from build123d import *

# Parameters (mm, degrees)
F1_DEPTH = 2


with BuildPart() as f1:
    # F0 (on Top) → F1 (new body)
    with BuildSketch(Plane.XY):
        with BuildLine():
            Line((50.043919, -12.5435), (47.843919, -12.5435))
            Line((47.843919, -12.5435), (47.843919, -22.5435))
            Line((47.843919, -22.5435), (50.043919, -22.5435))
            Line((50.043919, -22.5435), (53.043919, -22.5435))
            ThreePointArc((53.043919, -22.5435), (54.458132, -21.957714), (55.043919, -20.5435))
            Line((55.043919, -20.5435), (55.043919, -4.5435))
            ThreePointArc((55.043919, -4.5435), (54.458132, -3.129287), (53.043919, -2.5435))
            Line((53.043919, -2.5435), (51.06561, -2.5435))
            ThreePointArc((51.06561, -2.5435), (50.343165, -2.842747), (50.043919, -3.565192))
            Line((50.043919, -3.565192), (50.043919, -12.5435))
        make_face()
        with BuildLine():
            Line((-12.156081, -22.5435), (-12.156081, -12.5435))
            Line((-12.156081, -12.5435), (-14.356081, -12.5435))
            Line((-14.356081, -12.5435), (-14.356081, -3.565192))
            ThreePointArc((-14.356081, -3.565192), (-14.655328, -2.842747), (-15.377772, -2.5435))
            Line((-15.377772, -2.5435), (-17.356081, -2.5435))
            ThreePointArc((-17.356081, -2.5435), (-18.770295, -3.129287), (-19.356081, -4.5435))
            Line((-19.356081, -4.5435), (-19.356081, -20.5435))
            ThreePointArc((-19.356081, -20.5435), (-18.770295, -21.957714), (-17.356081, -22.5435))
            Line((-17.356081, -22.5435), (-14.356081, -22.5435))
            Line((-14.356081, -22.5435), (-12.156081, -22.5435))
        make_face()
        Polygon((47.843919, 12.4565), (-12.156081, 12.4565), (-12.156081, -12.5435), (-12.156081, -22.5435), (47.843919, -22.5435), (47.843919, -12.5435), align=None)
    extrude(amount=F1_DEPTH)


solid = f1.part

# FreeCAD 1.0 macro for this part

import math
import FreeCAD as App
import Part
import Sketcher

V = App.Vector
Q = App.Units.Quantity

doc = App.newDocument("Part")
params = doc.addObject("Spreadsheet::Sheet", "Params")
for row, (alias, value) in enumerate([
    ("sketch1_radius", "2 mm"),
    ("sketch1_width", "60 mm"),
    ("sketch1_height", "25 mm"),
    ("sketch1_height2", "16 mm"),
    ("sketch1_width2", "2.2 mm"),
    ("pad1_length", "2 mm"),
], start=1):
    params.set(f"A{row}", alias)
    params.set(f"B{row}", "=" + value)
    params.setAlias(f"B{row}", alias)

body = doc.addObject("PartDesign::Body", "Body")

sketch1 = body.newObject("Sketcher::SketchObject", "Sketch")
sketch1.AttachmentSupport = (doc.getObject("XY_Plane"), [""])
sketch1.MapMode = "FlatFace"
sketch1.addGeometry([
    Part.LineSegment(V(50, -12.5, 0), V(47.8, -12.5, 0)),
    Part.LineSegment(V(47.8, -12.5, 0), V(47.8, 12.5, 0)),
    Part.LineSegment(V(47.8, 12.5, 0), V(-12.2, 12.5, 0)),
    Part.LineSegment(V(-12.2, 12.5, 0), V(-12.2, -12.5, 0)),
    Part.LineSegment(V(-12.2, -12.5, 0), V(-14.4, -12.5, 0)),
    Part.LineSegment(V(-14.4, -12.5, 0), V(-14.4, -3.6, 0)),
    Part.ArcOfCircle(Part.Circle(V(-15.4, -3.6, 0), V(0, 0, 1), 1), math.radians(0), math.radians(90)),
    Part.LineSegment(V(-15.4, -2.5, 0), V(-17.4, -2.5, 0)),
    Part.ArcOfCircle(Part.Circle(V(-17.4, -4.5, 0), V(0, 0, 1), 2), math.radians(90), math.radians(180)),
    Part.LineSegment(V(-19.4, -4.5, 0), V(-19.4, -20.5, 0)),
    Part.ArcOfCircle(Part.Circle(V(-17.4, -20.5, 0), V(0, 0, 1), 2), math.radians(180), math.radians(270)),
    Part.LineSegment(V(-17.4, -22.5, 0), V(53, -22.5, 0)),
    Part.ArcOfCircle(Part.Circle(V(53, -20.5, 0), V(0, 0, 1), 2), math.radians(-90), math.radians(0)),
    Part.LineSegment(V(55, -20.5, 0), V(55, -4.5, 0)),
    Part.ArcOfCircle(Part.Circle(V(53, -4.5, 0), V(0, 0, 1), 2), math.radians(0), math.radians(90)),
    Part.LineSegment(V(53, -2.5, 0), V(51.1, -2.5, 0)),
    Part.ArcOfCircle(Part.Circle(V(51.1, -3.6, 0), V(0, 0, 1), 1), math.radians(90), math.radians(180)),
    Part.LineSegment(V(50, -3.6, 0), V(50, -12.5, 0)),
], False)
sketch1.addConstraint([
    Sketcher.Constraint("Coincident", 0, 2, 1, 1),
    Sketcher.Constraint("Coincident", 1, 2, 2, 1),
    Sketcher.Constraint("Coincident", 2, 2, 3, 1),
    Sketcher.Constraint("Coincident", 3, 2, 4, 1),
    Sketcher.Constraint("Coincident", 4, 2, 5, 1),
    Sketcher.Constraint("Tangent", 5, 2, 6, 1),
    Sketcher.Constraint("Coincident", 6, 2, 7, 1),
    Sketcher.Constraint("Tangent", 7, 2, 8, 1),
    Sketcher.Constraint("Tangent", 8, 2, 9, 1),
    Sketcher.Constraint("Tangent", 9, 2, 10, 1),
    Sketcher.Constraint("Tangent", 10, 2, 11, 1),
    Sketcher.Constraint("Tangent", 11, 2, 12, 1),
    Sketcher.Constraint("Tangent", 12, 2, 13, 1),
    Sketcher.Constraint("Tangent", 13, 2, 14, 1),
    Sketcher.Constraint("Tangent", 14, 2, 15, 1),
    Sketcher.Constraint("Tangent", 15, 2, 16, 1),
    Sketcher.Constraint("Tangent", 16, 2, 17, 1),
    Sketcher.Constraint("Coincident", 17, 2, 0, 1),
    Sketcher.Constraint("Horizontal", 0),
    Sketcher.Constraint("Vertical", 1),
    Sketcher.Constraint("Horizontal", 2),
    Sketcher.Constraint("Vertical", 3),
    Sketcher.Constraint("Horizontal", 4),
    Sketcher.Constraint("Vertical", 5),
    Sketcher.Constraint("Horizontal", 7),
    Sketcher.Constraint("Vertical", 9),
    Sketcher.Constraint("Horizontal", 11),
    Sketcher.Constraint("Vertical", 13),
    Sketcher.Constraint("Horizontal", 15),
    Sketcher.Constraint("Vertical", 17),
    Sketcher.Constraint("Equal", 8, 10),
    Sketcher.Constraint("Equal", 10, 12),
    Sketcher.Constraint("Equal", 12, 14),
    Sketcher.Constraint("Equal", 6, 16),
    Sketcher.Constraint("Horizontal", 8, 3, 14, 3),
    Sketcher.Constraint("Horizontal", 0, 2, 3, 2),
    Sketcher.Constraint("Equal", 0, 4),
    Sketcher.Constraint("Equal", 7, 15),
    Sketcher.Constraint("Radius", 8, Q("2 mm")),
    Sketcher.Constraint("DistanceX", 2, 2, 2, 1, Q("60 mm")),
    Sketcher.Constraint("DistanceY", 1, 1, 1, 2, Q("25 mm")),
    Sketcher.Constraint("DistanceY", 9, 2, 9, 1, Q("16 mm")),
    Sketcher.Constraint("DistanceX", 0, 2, 0, 1, Q("2.2 mm")),
    Sketcher.Constraint("DistanceX", 11, 1, 11, 2, Q("70.4 mm")),
    Sketcher.Constraint("DistanceY", 0, 2, 14, 3, Q("7.999998 mm")),
    Sketcher.Constraint("DistanceX", 8, 3, 4, 2, Q("3 mm")),
    Sketcher.Constraint("Radius", 16, Q("1.021691 mm")),
    Sketcher.Constraint("DistanceY", 8, 3, -1, 1, Q("4.5435 mm")),
    Sketcher.Constraint("DistanceX", 8, 3, -1, 1, Q("17.356081 mm")),
])
sketch1.setExpression("Constraints[38]", "Params.sketch1_radius")
sketch1.setExpression("Constraints[39]", "Params.sketch1_width")
sketch1.setExpression("Constraints[40]", "Params.sketch1_height")
sketch1.setExpression("Constraints[41]", "Params.sketch1_height2")
sketch1.setExpression("Constraints[42]", "Params.sketch1_width2")
pad1 = body.newObject("PartDesign::Pad", "Pad")
pad1.Profile = sketch1
pad1.setExpression("Length", "Params.pad1_length")

doc.recompute()
